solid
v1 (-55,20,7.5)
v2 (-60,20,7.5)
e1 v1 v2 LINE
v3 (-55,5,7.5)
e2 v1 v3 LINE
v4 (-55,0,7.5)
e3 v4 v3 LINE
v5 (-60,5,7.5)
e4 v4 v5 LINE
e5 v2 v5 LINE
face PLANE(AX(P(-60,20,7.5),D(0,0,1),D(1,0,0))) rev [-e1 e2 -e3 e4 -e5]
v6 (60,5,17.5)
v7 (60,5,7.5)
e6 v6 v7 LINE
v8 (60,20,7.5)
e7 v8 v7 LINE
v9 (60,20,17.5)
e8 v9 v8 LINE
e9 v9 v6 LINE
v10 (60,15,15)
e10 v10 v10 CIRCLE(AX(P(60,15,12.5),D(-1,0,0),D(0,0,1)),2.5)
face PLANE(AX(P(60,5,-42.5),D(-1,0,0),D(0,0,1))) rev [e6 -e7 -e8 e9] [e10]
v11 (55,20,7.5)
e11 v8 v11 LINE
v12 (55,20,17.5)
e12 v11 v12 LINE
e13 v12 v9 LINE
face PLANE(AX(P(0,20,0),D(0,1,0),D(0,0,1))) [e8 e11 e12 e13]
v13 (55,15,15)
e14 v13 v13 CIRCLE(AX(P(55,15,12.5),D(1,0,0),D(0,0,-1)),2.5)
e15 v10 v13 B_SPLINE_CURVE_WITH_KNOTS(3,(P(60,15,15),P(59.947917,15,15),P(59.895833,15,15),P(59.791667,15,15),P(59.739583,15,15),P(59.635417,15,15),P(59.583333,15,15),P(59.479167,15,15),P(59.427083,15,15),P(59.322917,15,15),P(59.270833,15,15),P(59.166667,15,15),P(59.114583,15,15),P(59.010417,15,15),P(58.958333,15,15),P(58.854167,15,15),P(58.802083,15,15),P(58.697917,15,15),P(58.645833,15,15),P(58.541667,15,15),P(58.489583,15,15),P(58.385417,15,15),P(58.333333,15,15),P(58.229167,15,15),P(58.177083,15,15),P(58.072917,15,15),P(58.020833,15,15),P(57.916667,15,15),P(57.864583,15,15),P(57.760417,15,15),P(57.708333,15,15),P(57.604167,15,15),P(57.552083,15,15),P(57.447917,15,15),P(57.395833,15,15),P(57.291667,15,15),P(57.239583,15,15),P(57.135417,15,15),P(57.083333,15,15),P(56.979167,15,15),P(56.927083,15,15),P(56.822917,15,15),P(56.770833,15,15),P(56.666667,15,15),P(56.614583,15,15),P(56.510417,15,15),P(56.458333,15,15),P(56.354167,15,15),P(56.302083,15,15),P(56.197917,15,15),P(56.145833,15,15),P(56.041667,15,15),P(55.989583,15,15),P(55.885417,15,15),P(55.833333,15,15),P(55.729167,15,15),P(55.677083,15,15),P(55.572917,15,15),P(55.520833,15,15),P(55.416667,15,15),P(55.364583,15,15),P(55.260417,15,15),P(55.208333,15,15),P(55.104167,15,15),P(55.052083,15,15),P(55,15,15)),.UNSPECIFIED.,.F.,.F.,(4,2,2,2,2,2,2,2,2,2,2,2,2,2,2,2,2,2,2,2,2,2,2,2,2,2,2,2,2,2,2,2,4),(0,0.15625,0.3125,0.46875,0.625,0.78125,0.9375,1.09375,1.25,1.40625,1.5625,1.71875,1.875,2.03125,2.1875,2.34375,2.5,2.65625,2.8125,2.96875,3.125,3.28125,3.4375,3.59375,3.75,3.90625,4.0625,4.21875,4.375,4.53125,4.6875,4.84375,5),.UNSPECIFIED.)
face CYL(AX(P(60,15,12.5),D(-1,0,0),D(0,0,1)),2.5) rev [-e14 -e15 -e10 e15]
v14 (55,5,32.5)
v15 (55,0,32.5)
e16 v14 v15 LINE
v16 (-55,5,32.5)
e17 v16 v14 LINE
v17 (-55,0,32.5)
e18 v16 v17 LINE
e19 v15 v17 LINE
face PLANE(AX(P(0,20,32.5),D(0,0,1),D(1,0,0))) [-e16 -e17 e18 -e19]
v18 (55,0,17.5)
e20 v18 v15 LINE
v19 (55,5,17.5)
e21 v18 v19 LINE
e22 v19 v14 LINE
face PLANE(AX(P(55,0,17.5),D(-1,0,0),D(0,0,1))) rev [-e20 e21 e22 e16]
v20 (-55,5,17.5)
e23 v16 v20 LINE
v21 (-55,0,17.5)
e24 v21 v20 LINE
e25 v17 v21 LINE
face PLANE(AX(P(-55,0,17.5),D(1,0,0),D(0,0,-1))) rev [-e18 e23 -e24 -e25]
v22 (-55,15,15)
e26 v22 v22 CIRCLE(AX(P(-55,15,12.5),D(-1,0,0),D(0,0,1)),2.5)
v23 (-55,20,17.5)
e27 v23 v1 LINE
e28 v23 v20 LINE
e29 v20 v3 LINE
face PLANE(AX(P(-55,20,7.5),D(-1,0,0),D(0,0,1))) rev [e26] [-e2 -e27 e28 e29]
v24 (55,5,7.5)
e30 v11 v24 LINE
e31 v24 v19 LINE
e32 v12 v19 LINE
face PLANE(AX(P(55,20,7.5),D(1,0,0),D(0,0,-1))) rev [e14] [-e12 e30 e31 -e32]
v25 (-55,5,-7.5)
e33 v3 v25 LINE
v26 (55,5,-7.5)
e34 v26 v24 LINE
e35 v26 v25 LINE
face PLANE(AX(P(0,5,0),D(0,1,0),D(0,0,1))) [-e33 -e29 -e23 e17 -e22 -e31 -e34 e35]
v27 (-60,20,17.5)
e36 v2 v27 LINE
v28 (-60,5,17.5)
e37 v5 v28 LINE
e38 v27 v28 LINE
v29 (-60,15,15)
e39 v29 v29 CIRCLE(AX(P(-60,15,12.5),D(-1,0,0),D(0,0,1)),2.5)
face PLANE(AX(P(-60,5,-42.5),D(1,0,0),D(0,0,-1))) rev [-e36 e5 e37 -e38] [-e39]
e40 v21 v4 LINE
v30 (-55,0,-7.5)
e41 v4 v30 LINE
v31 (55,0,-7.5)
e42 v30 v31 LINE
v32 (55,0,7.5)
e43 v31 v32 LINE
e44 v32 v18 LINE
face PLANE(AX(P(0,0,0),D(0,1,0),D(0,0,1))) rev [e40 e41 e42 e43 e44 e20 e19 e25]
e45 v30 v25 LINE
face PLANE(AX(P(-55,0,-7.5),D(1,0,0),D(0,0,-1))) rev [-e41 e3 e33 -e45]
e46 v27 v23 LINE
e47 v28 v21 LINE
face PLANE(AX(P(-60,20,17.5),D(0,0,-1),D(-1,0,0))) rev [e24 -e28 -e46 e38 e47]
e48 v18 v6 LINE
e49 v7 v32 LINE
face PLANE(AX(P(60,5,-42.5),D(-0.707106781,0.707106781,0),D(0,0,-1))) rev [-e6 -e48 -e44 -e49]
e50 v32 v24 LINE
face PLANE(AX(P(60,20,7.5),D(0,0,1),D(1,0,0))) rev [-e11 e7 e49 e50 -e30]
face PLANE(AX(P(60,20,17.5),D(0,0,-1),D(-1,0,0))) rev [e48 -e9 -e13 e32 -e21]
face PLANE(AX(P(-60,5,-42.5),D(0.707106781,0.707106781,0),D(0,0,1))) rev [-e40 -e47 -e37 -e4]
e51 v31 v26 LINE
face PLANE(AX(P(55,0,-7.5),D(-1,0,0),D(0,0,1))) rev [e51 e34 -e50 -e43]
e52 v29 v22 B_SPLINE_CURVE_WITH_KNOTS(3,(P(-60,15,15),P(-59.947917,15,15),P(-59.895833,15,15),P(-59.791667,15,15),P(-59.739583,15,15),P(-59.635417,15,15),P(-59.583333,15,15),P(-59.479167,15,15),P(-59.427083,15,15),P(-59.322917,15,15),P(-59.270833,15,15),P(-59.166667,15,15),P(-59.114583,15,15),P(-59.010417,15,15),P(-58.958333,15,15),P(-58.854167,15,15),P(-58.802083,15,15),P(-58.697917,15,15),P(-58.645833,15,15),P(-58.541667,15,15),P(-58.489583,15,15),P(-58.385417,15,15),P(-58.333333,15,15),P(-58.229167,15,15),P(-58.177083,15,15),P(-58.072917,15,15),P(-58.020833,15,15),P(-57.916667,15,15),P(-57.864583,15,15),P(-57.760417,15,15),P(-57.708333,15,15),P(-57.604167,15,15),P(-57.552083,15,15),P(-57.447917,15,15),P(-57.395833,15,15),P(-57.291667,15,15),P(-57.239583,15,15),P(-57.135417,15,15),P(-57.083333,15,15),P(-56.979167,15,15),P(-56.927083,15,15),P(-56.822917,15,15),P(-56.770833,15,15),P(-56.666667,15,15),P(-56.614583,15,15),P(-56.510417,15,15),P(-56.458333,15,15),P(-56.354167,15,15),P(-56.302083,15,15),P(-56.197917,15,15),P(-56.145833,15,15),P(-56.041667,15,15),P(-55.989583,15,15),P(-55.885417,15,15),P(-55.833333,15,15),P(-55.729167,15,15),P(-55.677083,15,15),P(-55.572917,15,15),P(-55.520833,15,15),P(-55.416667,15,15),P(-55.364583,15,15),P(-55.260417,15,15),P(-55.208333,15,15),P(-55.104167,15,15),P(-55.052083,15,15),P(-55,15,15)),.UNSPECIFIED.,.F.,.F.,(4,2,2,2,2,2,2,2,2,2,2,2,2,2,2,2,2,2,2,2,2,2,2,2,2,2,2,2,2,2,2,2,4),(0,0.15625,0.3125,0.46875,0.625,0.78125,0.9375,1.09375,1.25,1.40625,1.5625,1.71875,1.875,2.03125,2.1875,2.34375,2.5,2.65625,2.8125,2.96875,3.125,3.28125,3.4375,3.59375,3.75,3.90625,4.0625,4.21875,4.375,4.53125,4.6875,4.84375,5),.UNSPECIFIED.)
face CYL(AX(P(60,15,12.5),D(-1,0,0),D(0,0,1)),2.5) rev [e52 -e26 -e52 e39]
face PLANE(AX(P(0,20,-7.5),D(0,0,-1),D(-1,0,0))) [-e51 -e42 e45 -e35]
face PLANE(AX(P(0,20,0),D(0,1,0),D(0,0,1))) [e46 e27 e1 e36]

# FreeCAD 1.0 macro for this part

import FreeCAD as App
import Part
import Sketcher
Q = App.Units.Quantity


def edges_at(feature, points):
    """Names of the edges that pass closest to the given points."""
    edges = feature.Shape.Edges
    near = lambda p: min(range(len(edges)), key=lambda i: edges[i].distToShape(Part.Vertex(*p))[0])
    return sorted({f"Edge{near(p) + 1}" for p in points})


def add_polygon(sketch, points):
    """Adds a closed chain of lines whose ends are joined by coincident constraints."""
    first, n = sketch.GeometryCount, len(points)
    for a, b in zip(points, points[1:] + points[:1]):
        sketch.addGeometry(Part.LineSegment(App.Vector(*a, 0), App.Vector(*b, 0)), False)
    for i in range(n):
        sketch.addConstraint(Sketcher.Constraint("Coincident", first + i, 2, first + (i + 1) % n, 1))

doc = App.newDocument("Part")
body = doc.addObject("PartDesign::Body", "Body")

sketch1 = doc.addObject("Sketcher::SketchObject", "Sketch")
body.addObject(sketch1)
sketch1.AttachmentSupport = (doc.XZ_Plane, [""])
sketch1.MapMode = "FlatFace"
add_polygon(sketch1, [(-60, -42), (-60, 42), (60, 42), (60, -42)])
sketch1.addConstraint(Sketcher.Constraint("Vertical", 0))
sketch1.addConstraint(Sketcher.Constraint("Horizontal", 1))
sketch1.addConstraint(Sketcher.Constraint("Vertical", 2))
sketch1.addConstraint(Sketcher.Constraint("Horizontal", 3))
sketch1.addConstraint(Sketcher.Constraint("Symmetric", 0, 2, 2, 2, -1, 1))
sketch1.addConstraint(Sketcher.Constraint("DistanceX", 1, 1, 1, 2, Q("120 mm")))
sketch1.addConstraint(Sketcher.Constraint("DistanceY", 0, 1, 0, 2, Q("85 mm")))
pad1 = doc.addObject("PartDesign::Pad", "Pad")
body.addObject(pad1)
pad1.Profile = sketch1
pad1.Length = 5
pad1.Reversed = True

sketch2 = doc.addObject("Sketcher::SketchObject", "Sketch001")
body.addObject(sketch2)
sketch2.AttachmentSupport = (doc.XZ_Plane, [""])
sketch2.MapMode = "FlatFace"
sketch2.AttachmentOffset = App.Placement(App.Vector(0, 0, -5), App.Rotation())
add_polygon(sketch2, [(-60, -18), (-60, -8), (-55, -8), (-55, -18)])
add_polygon(sketch2, [(-60, 8), (-60, 18), (-55, 18), (-55, 8)])
add_polygon(sketch2, [(55, 8), (55, 18), (60, 18), (60, 8)])
add_polygon(sketch2, [(55, -18), (55, -8), (60, -8), (60, -18)])
sketch2.addConstraint(Sketcher.Constraint("Vertical", 0))
sketch2.addConstraint(Sketcher.Constraint("Horizontal", 1))
sketch2.addConstraint(Sketcher.Constraint("Vertical", 2))
sketch2.addConstraint(Sketcher.Constraint("Horizontal", 3))
sketch2.addConstraint(Sketcher.Constraint("Vertical", 4))
sketch2.addConstraint(Sketcher.Constraint("Horizontal", 5))
sketch2.addConstraint(Sketcher.Constraint("Vertical", 6))
sketch2.addConstraint(Sketcher.Constraint("Horizontal", 7))
sketch2.addConstraint(Sketcher.Constraint("Vertical", 8))
sketch2.addConstraint(Sketcher.Constraint("Horizontal", 9))
sketch2.addConstraint(Sketcher.Constraint("Vertical", 10))
sketch2.addConstraint(Sketcher.Constraint("Horizontal", 11))
sketch2.addConstraint(Sketcher.Constraint("Vertical", 12))
sketch2.addConstraint(Sketcher.Constraint("Horizontal", 13))
sketch2.addConstraint(Sketcher.Constraint("Vertical", 14))
sketch2.addConstraint(Sketcher.Constraint("Horizontal", 15))
sketch2.addConstraint(Sketcher.Constraint("Symmetric", 2, 2, 8, 2, -1, 1))
sketch2.addConstraint(Sketcher.Constraint("Symmetric", 0, 2, 10, 2, -1, 1))
sketch2.addConstraint(Sketcher.Constraint("Symmetric", 6, 2, 12, 2, -1, 1))
sketch2.addConstraint(Sketcher.Constraint("Symmetric", 4, 2, 14, 2, -1, 1))
sketch2.addConstraint(Sketcher.Constraint("Symmetric", 5, 2, 8, 2, -2))
sketch2.addConstraint(Sketcher.Constraint("Symmetric", 7, 2, 10, 2, -2))
sketch2.addConstraint(Sketcher.Constraint("DistanceX", 1, 1, 1, 2, Q("5 mm")))
sketch2.addConstraint(Sketcher.Constraint("DistanceY", 0, 1, 0, 2, Q("10 mm")))
sketch2.addConstraint(Sketcher.Constraint("DistanceX", 0, 2, -1, 1, Q("60 mm")))
sketch2.addConstraint(Sketcher.Constraint("DistanceY", 0, 2, 4, 2, Q("25 mm")))
pad2 = doc.addObject("PartDesign::Pad", "Pad001")
body.addObject(pad2)
pad2.Profile = sketch2
pad2.Length = 15
pad2.Reversed = True

sketch3 = doc.addObject("Sketcher::SketchObject", "Sketch002")
body.addObject(sketch3)
sketch3.AttachmentSupport = (doc.YZ_Plane, [""])
sketch3.MapMode = "FlatFace"
sketch3.AttachmentOffset = App.Placement(App.Vector(0, 0, -60), App.Rotation())
sketch3.addGeometry(Part.Circle(App.Vector(15, -12.5, 0), App.Vector(0, 0, 1), 2.5), False)
sketch3.addGeometry(Part.Circle(App.Vector(15, 12.5, 0), App.Vector(0, 0, 1), 2.5), False)
sketch3.addConstraint(Sketcher.Constraint("Equal", 0, 1))
sketch3.addConstraint(Sketcher.Constraint("Symmetric", 0, 3, 1, 3, -1))
sketch3.addConstraint(Sketcher.Constraint("Diameter", 0, Q("5 mm")))
sketch3.addConstraint(Sketcher.Constraint("DistanceX", -1, 1, 0, 3, Q("15 mm")))
sketch3.addConstraint(Sketcher.Constraint("DistanceY", 0, 3, 1, 3, Q("25 mm")))
pocket1 = doc.addObject("PartDesign::Pocket", "Pocket")
body.addObject(pocket1)
pocket1.Profile = sketch3
pocket1.Type = "ThroughAll"
pocket1.Reversed = True

sketch4 = doc.addObject("Sketcher::SketchObject", "Sketch003")
body.addObject(sketch4)
sketch4.AttachmentSupport = (doc.XZ_Plane, [""])
sketch4.MapMode = "FlatFace"
sketch4.AttachmentOffset = App.Placement(App.Vector(0, 0, -5), App.Rotation())
add_polygon(sketch4, [(-60, -42), (-60, -18), (-55, -18), (-55, -42)])
add_polygon(sketch4, [(-60, -8), (-60, 8), (-55, 8), (-55, -8)])
add_polygon(sketch4, [(-60, 18), (-60, 42), (-55, 42), (-55, 18)])
add_polygon(sketch4, [(55, 18), (55, 42), (60, 42), (60, 18)])
add_polygon(sketch4, [(55, -8), (55, 8), (60, 8), (60, -8)])
add_polygon(sketch4, [(55, -42), (55, -18), (60, -18), (60, -42)])
sketch4.addConstraint(Sketcher.Constraint("Vertical", 0))
sketch4.addConstraint(Sketcher.Constraint("Horizontal", 1))
sketch4.addConstraint(Sketcher.Constraint("Vertical", 2))
sketch4.addConstraint(Sketcher.Constraint("Horizontal", 3))
sketch4.addConstraint(Sketcher.Constraint("Vertical", 4))
sketch4.addConstraint(Sketcher.Constraint("Horizontal", 5))
sketch4.addConstraint(Sketcher.Constraint("Vertical", 6))
sketch4.addConstraint(Sketcher.Constraint("Horizontal", 7))
sketch4.addConstraint(Sketcher.Constraint("Vertical", 8))
sketch4.addConstraint(Sketcher.Constraint("Horizontal", 9))
sketch4.addConstraint(Sketcher.Constraint("Vertical", 10))
sketch4.addConstraint(Sketcher.Constraint("Horizontal", 11))
sketch4.addConstraint(Sketcher.Constraint("Vertical", 12))
sketch4.addConstraint(Sketcher.Constraint("Horizontal", 13))
sketch4.addConstraint(Sketcher.Constraint("Vertical", 14))
sketch4.addConstraint(Sketcher.Constraint("Horizontal", 15))
sketch4.addConstraint(Sketcher.Constraint("Vertical", 16))
sketch4.addConstraint(Sketcher.Constraint("Horizontal", 17))
sketch4.addConstraint(Sketcher.Constraint("Vertical", 18))
sketch4.addConstraint(Sketcher.Constraint("Horizontal", 19))
sketch4.addConstraint(Sketcher.Constraint("Vertical", 20))
sketch4.addConstraint(Sketcher.Constraint("Horizontal", 21))
sketch4.addConstraint(Sketcher.Constraint("Vertical", 22))
sketch4.addConstraint(Sketcher.Constraint("Horizontal", 23))
sketch4.addConstraint(Sketcher.Constraint("Symmetric", 2, 2, 12, 2, -1, 1))
sketch4.addConstraint(Sketcher.Constraint("Symmetric", 0, 2, 14, 2, -1, 1))
sketch4.addConstraint(Sketcher.Constraint("Symmetric", 6, 2, 16, 2, -1, 1))
sketch4.addConstraint(Sketcher.Constraint("Symmetric", 4, 2, 18, 2, -1, 1))
sketch4.addConstraint(Sketcher.Constraint("Symmetric", 10, 2, 20, 2, -1, 1))
sketch4.addConstraint(Sketcher.Constraint("Symmetric", 8, 2, 22, 2, -1, 1))
sketch4.addConstraint(Sketcher.Constraint("Symmetric", 9, 2, 12, 2, -2))
sketch4.addConstraint(Sketcher.Constraint("Symmetric", 11, 2, 14, 2, -2))
sketch4.addConstraint(Sketcher.Constraint("Horizontal", 5, 2, 16, 2))
sketch4.addConstraint(Sketcher.Constraint("Vertical", 3, 2, 4, 2))
sketch4.addConstraint(Sketcher.Constraint("Vertical", 2, 2, 5, 2))
sketch4.addConstraint(Sketcher.Constraint("DistanceX", 1, 1, 1, 2, Q("5 mm")))
sketch4.addConstraint(Sketcher.Constraint("DistanceY", 0, 1, 0, 2, Q("25 mm")))
sketch4.addConstraint(Sketcher.Constraint("DistanceY", 4, 1, 4, 2, Q("15 mm")))
sketch4.addConstraint(Sketcher.Constraint("DistanceX", 0, 2, -1, 1, Q("60 mm")))
sketch4.addConstraint(Sketcher.Constraint("DistanceY", 0, 2, 4, 2, Q("25 mm")))
pocket2 = doc.addObject("PartDesign::Pocket", "Pocket001")
body.addObject(pocket2)
pocket2.Profile = sketch4
pocket2.Type = "ThroughAll"
pocket2.Reversed = True
doc.recompute()

chamfer = doc.addObject("PartDesign::Chamfer", "Chamfer")
body.addObject(chamfer)
chamfer.Base = (pocket2, edges_at(pocket2, [
    (-60, 0, 12.5),
    (-60, 0, -12.5),
    (60, 0, -12.5),
    (60, 0, 12.5),
]))
chamfer.Size = 5

sketch5 = doc.addObject("Sketcher::SketchObject", "Sketch004")
body.addObject(sketch5)
sketch5.AttachmentSupport = (doc.XZ_Plane, [""])
sketch5.MapMode = "FlatFace"
add_polygon(sketch5, [(60, -8), (-60, -8), (-60, -42), (60, -42)])
add_polygon(sketch5, [(-55, 42), (-55, 32), (55, 32), (55, 42)])
sketch5.addConstraint(Sketcher.Constraint("Horizontal", 0))
sketch5.addConstraint(Sketcher.Constraint("Vertical", 1))
sketch5.addConstraint(Sketcher.Constraint("Horizontal", 2))
sketch5.addConstraint(Sketcher.Constraint("Vertical", 3))
sketch5.addConstraint(Sketcher.Constraint("Vertical", 4))
sketch5.addConstraint(Sketcher.Constraint("Horizontal", 5))
sketch5.addConstraint(Sketcher.Constraint("Vertical", 6))
sketch5.addConstraint(Sketcher.Constraint("Horizontal", 7))
sketch5.addConstraint(Sketcher.Constraint("DistanceX", 0, 2, 0, 1, Q("120 mm")))
sketch5.addConstraint(Sketcher.Constraint("DistanceX", 5, 1, 5, 2, Q("110 mm")))
sketch5.addConstraint(Sketcher.Constraint("DistanceY", 1, 2, 1, 1, Q("35 mm")))
sketch5.addConstraint(Sketcher.Constraint("DistanceY", 4, 2, 4, 1, Q("10 mm")))
sketch5.addConstraint(Sketcher.Constraint("DistanceX", 0, 2, -1, 1, Q("60 mm")))
sketch5.addConstraint(Sketcher.Constraint("DistanceX", 4, 2, -1, 1, Q("55 mm")))
sketch5.addConstraint(Sketcher.Constraint("DistanceY", 0, 2, 4, 2, Q("40 mm")))
sketch5.addConstraint(Sketcher.Constraint("DistanceY", 0, 2, -1, 1, Q("7.5 mm")))
pocket3 = doc.addObject("PartDesign::Pocket", "Pocket002")
body.addObject(pocket3)
pocket3.Profile = sketch5
pocket3.Type = "ThroughAll"

doc.recompute()
